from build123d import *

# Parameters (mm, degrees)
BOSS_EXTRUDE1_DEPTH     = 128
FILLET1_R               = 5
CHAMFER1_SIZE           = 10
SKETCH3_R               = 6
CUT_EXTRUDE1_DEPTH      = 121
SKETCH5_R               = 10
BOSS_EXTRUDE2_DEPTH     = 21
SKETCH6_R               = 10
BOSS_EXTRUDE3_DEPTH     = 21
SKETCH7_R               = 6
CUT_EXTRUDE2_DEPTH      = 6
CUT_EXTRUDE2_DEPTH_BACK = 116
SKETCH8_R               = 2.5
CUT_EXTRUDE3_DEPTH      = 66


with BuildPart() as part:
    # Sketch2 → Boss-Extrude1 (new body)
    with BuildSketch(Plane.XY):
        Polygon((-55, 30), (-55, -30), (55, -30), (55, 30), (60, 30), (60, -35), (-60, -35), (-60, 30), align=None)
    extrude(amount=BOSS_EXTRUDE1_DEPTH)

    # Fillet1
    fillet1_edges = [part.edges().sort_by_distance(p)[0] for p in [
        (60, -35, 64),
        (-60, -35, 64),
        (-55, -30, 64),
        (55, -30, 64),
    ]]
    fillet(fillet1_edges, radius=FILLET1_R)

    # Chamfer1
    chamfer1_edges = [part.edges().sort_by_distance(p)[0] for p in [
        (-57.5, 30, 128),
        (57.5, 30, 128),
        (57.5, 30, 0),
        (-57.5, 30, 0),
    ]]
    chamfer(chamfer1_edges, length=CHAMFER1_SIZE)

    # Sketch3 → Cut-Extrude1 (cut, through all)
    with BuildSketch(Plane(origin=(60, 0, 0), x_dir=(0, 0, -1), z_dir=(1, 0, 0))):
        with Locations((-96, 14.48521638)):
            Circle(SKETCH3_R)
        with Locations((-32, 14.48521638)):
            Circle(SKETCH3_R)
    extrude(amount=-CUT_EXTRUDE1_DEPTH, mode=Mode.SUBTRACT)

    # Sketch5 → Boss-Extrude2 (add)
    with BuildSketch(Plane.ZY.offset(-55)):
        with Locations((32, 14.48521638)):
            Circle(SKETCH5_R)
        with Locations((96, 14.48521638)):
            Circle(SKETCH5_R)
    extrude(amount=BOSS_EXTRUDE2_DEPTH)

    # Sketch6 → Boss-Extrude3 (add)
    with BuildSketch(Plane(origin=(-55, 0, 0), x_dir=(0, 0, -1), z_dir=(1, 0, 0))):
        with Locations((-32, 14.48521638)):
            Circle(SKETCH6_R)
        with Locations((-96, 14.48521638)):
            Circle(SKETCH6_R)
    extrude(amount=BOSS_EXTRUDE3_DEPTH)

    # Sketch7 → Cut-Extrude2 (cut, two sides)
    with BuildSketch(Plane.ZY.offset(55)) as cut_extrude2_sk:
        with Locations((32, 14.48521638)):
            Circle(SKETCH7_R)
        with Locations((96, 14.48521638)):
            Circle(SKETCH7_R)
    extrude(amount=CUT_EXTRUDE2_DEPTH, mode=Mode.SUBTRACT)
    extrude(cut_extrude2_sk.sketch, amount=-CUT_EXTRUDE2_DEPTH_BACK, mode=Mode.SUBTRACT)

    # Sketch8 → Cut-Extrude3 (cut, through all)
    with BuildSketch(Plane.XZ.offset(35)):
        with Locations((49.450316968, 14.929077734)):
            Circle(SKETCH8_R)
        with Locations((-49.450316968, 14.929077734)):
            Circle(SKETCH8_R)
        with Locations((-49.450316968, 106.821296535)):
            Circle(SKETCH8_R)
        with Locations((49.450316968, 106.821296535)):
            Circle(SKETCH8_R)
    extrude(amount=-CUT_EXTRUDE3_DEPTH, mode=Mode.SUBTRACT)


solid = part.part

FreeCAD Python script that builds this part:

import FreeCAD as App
import Part
import Sketcher

V = App.Vector
Q = App.Units.Quantity


def edges_at(feature, points):
    """Names of the edges that pass closest to the given points."""
    edges = feature.Shape.Edges
    near = lambda p: min(range(len(edges)), key=lambda i: edges[i].distToShape(Part.Vertex(*p))[0])
    return sorted({f"Edge{near(p) + 1}" for p in points})

doc = App.newDocument("Part")
body = doc.addObject("PartDesign::Body", "Body")

# Sketch on XY plane
sketch1 = doc.addObject("Sketcher::SketchObject", "Sketch")
body.addObject(sketch1)
sketch1.AttachmentSupport = (doc.XY_Plane, [""])
sketch1.MapMode = "FlatFace"
sketch1.addGeometry([
    Part.LineSegment(V(-55, -30, 0), V(-55, 30, 0)),  # 0
    Part.LineSegment(V(-55, 30, 0), V(-60, 30, 0)),  # 1
    Part.LineSegment(V(-60, 30, 0), V(-60, -35, 0)),  # 2
    Part.LineSegment(V(-60, -35, 0), V(60, -35, 0)),  # 3
    Part.LineSegment(V(60, -35, 0), V(60, 30, 0)),  # 4
    Part.LineSegment(V(60, 30, 0), V(55, 30, 0)),  # 5
    Part.LineSegment(V(55, 30, 0), V(55, -30, 0)),  # 6
    Part.LineSegment(V(55, -30, 0), V(-55, -30, 0)),  # 7
], False)
sketch1.addConstraint([
    Sketcher.Constraint("Coincident", 0, 2, 1, 1),
    Sketcher.Constraint("Coincident", 1, 2, 2, 1),
    Sketcher.Constraint("Coincident", 2, 2, 3, 1),
    Sketcher.Constraint("Coincident", 3, 2, 4, 1),
    Sketcher.Constraint("Coincident", 4, 2, 5, 1),
    Sketcher.Constraint("Coincident", 5, 2, 6, 1),
    Sketcher.Constraint("Coincident", 6, 2, 7, 1),
    Sketcher.Constraint("Coincident", 7, 2, 0, 1),
    Sketcher.Constraint("Vertical", 0),
    Sketcher.Constraint("Horizontal", 1),
    Sketcher.Constraint("Vertical", 2),
    Sketcher.Constraint("Horizontal", 3),
    Sketcher.Constraint("Vertical", 4),
    Sketcher.Constraint("Horizontal", 5),
    Sketcher.Constraint("Vertical", 6),
    Sketcher.Constraint("Horizontal", 7),
    Sketcher.Constraint("Symmetric", 0, 2, 6, 2, -1, 1),
    Sketcher.Constraint("Symmetric", 1, 2, 4, 2, -2),
    Sketcher.Constraint("DistanceX", 1, 2, 1, 1, Q("5 mm")),
    Sketcher.Constraint("DistanceX", 3, 1, 3, 2, Q("120 mm")),
    Sketcher.Constraint("DistanceY", 0, 1, 0, 2, Q("60 mm")),
    Sketcher.Constraint("DistanceY", 2, 2, 2, 1, Q("65 mm")),
])
pad1 = doc.addObject("PartDesign::Pad", "Pad")
body.addObject(pad1)
pad1.Profile = sketch1
pad1.Length = 128
doc.recompute()

fillet = doc.addObject("PartDesign::Fillet", "Fillet")
body.addObject(fillet)
fillet.Base = (pad1, edges_at(pad1, [
    (60, -35, 64),
    (-60, -35, 64),
    (-55, -30, 64),
    (55, -30, 64),
]))
fillet.Radius = 5
doc.recompute()

chamfer = doc.addObject("PartDesign::Chamfer", "Chamfer")
body.addObject(chamfer)
chamfer.Base = (fillet, edges_at(fillet, [
    (-57.5, 30, 128),
    (57.5, 30, 128),
    (57.5, 30, 0),
    (-57.5, 30, 0),
]))
chamfer.Size = 10

# Sketch on YZ plane
sketch2 = doc.addObject("Sketcher::SketchObject", "Sketch001")
body.addObject(sketch2)
sketch2.AttachmentSupport = (doc.YZ_Plane, [""])
sketch2.MapMode = "FlatFace"
sketch2.AttachmentOffset = App.Placement(V(0, 0, 60), App.Rotation())
sketch2.addGeometry([
    Part.Circle(V(14, 96, 0), V(0, 0, 1), 6),
    Part.Circle(V(14, 32, 0), V(0, 0, 1), 6),
], False)
sketch2.addConstraint([
    Sketcher.Constraint("Equal", 0, 1),
    Sketcher.Constraint("Vertical", 0, 3, 1, 3),
    Sketcher.Constraint("Diameter", 0, Q("12 mm")),
    Sketcher.Constraint("DistanceY", -1, 1, 0, 3, Q("96 mm")),
    Sketcher.Constraint("DistanceY", -1, 1, 1, 3, Q("32 mm")),
    Sketcher.Constraint("DistanceX", -1, 1, 0, 3, Q("14.485216 mm")),
])
pocket1 = doc.addObject("PartDesign::Pocket", "Pocket")
body.addObject(pocket1)
pocket1.Profile = sketch2
pocket1.Type = "ThroughAll"

# Sketch on YZ plane
sketch3 = doc.addObject("Sketcher::SketchObject", "Sketch002")
body.addObject(sketch3)
sketch3.AttachmentSupport = (doc.YZ_Plane, [""])
sketch3.MapMode = "FlatFace"
sketch3.AttachmentOffset = App.Placement(V(0, 0, 55), App.Rotation())
sketch3.addGeometry([
    Part.Circle(V(14, 32, 0), V(0, 0, 1), 10),
    Part.Circle(V(14, 96, 0), V(0, 0, 1), 10),
], False)
sketch3.addConstraint([
    Sketcher.Constraint("Equal", 0, 1),
    Sketcher.Constraint("Vertical", 0, 3, 1, 3),
    Sketcher.Constraint("Diameter", 0, Q("20 mm")),
    Sketcher.Constraint("DistanceY", -1, 1, 0, 3, Q("32 mm")),
    Sketcher.Constraint("DistanceY", -1, 1, 1, 3, Q("96 mm")),
    Sketcher.Constraint("DistanceX", -1, 1, 0, 3, Q("14.485216 mm")),
])
pad2 = doc.addObject("PartDesign::Pad", "Pad001")
body.addObject(pad2)
pad2.Profile = sketch3
pad2.Length = 21
pad2.Reversed = True

# Sketch on YZ plane
sketch4 = doc.addObject("Sketcher::SketchObject", "Sketch003")
body.addObject(sketch4)
sketch4.AttachmentSupport = (doc.YZ_Plane, [""])
sketch4.MapMode = "FlatFace"
sketch4.AttachmentOffset = App.Placement(V(0, 0, -55), App.Rotation())
sketch4.addGeometry([
    Part.Circle(V(14, 32, 0), V(0, 0, 1), 10),
    Part.Circle(V(14, 96, 0), V(0, 0, 1), 10),
], False)
sketch4.addConstraint([
    Sketcher.Constraint("Equal", 0, 1),
    Sketcher.Constraint("Vertical", 0, 3, 1, 3),
    Sketcher.Constraint("Diameter", 0, Q("20 mm")),
    Sketcher.Constraint("DistanceY", -1, 1, 0, 3, Q("32 mm")),
    Sketcher.Constraint("DistanceY", -1, 1, 1, 3, Q("96 mm")),
    Sketcher.Constraint("DistanceX", -1, 1, 0, 3, Q("14.485216 mm")),
])
pad3 = doc.addObject("PartDesign::Pad", "Pad002")
body.addObject(pad3)
pad3.Profile = sketch4
pad3.Length = 21

# Sketch on YZ plane
sketch5 = doc.addObject("Sketcher::SketchObject", "Sketch004")
body.addObject(sketch5)
sketch5.AttachmentSupport = (doc.YZ_Plane, [""])
sketch5.MapMode = "FlatFace"
sketch5.AttachmentOffset = App.Placement(V(0, 0, -55), App.Rotation())
sketch5.addGeometry([
    Part.Circle(V(14, 32, 0), V(0, 0, 1), 6),
    Part.Circle(V(14, 96, 0), V(0, 0, 1), 6),
], False)
sketch5.addConstraint([
    Sketcher.Constraint("Equal", 0, 1),
    Sketcher.Constraint("Vertical", 0, 3, 1, 3),
    Sketcher.Constraint("Diameter", 0, Q("12 mm")),
    Sketcher.Constraint("DistanceY", -1, 1, 0, 3, Q("32 mm")),
    Sketcher.Constraint("DistanceY", -1, 1, 1, 3, Q("96 mm")),
    Sketcher.Constraint("DistanceX", -1, 1, 0, 3, Q("14.485216 mm")),
])
pocket2 = doc.addObject("PartDesign::Pocket", "Pocket001")
body.addObject(pocket2)
pocket2.Profile = sketch5
pocket2.Type = "ThroughAll"
pocket2.Midplane = True

# Sketch on XZ plane
sketch6 = doc.addObject("Sketcher::SketchObject", "Sketch005")
body.addObject(sketch6)
sketch6.AttachmentSupport = (doc.XZ_Plane, [""])
sketch6.MapMode = "FlatFace"
sketch6.AttachmentOffset = App.Placement(V(0, 0, 35), App.Rotation())
sketch6.addGeometry([
    Part.Circle(V(49.5, 14.9, 0), V(0, 0, 1), 2.5),
    Part.Circle(V(-49.5, 14.9, 0), V(0, 0, 1), 2.5),
    Part.Circle(V(-49.5, 106.8, 0), V(0, 0, 1), 2.5),
    Part.Circle(V(49.5, 106.8, 0), V(0, 0, 1), 2.5),
], False)
sketch6.addConstraint([
    Sketcher.Constraint("Equal", 0, 1),
    Sketcher.Constraint("Equal", 1, 2),
    Sketcher.Constraint("Equal", 2, 3),
    Sketcher.Constraint("Symmetric", 0, 3, 1, 3, -2),
    Sketcher.Constraint("Symmetric", 2, 3, 3, 3, -2),
    Sketcher.Constraint("Vertical", 1, 3, 2, 3),
    Sketcher.Constraint("Diameter", 0, Q("5 mm")),
    Sketcher.Constraint("DistanceY", 1, 3, 2, 3, Q("91.892219 mm")),
    Sketcher.Constraint("DistanceX", -1, 1, 0, 3, Q("49.450317 mm")),
    Sketcher.Constraint("DistanceY", -1, 1, 0, 3, Q("14.929078 mm")),
])
pocket3 = doc.addObject("PartDesign::Pocket", "Pocket002")
body.addObject(pocket3)
pocket3.Profile = sketch6
pocket3.Type = "ThroughAll"

doc.recompute()
